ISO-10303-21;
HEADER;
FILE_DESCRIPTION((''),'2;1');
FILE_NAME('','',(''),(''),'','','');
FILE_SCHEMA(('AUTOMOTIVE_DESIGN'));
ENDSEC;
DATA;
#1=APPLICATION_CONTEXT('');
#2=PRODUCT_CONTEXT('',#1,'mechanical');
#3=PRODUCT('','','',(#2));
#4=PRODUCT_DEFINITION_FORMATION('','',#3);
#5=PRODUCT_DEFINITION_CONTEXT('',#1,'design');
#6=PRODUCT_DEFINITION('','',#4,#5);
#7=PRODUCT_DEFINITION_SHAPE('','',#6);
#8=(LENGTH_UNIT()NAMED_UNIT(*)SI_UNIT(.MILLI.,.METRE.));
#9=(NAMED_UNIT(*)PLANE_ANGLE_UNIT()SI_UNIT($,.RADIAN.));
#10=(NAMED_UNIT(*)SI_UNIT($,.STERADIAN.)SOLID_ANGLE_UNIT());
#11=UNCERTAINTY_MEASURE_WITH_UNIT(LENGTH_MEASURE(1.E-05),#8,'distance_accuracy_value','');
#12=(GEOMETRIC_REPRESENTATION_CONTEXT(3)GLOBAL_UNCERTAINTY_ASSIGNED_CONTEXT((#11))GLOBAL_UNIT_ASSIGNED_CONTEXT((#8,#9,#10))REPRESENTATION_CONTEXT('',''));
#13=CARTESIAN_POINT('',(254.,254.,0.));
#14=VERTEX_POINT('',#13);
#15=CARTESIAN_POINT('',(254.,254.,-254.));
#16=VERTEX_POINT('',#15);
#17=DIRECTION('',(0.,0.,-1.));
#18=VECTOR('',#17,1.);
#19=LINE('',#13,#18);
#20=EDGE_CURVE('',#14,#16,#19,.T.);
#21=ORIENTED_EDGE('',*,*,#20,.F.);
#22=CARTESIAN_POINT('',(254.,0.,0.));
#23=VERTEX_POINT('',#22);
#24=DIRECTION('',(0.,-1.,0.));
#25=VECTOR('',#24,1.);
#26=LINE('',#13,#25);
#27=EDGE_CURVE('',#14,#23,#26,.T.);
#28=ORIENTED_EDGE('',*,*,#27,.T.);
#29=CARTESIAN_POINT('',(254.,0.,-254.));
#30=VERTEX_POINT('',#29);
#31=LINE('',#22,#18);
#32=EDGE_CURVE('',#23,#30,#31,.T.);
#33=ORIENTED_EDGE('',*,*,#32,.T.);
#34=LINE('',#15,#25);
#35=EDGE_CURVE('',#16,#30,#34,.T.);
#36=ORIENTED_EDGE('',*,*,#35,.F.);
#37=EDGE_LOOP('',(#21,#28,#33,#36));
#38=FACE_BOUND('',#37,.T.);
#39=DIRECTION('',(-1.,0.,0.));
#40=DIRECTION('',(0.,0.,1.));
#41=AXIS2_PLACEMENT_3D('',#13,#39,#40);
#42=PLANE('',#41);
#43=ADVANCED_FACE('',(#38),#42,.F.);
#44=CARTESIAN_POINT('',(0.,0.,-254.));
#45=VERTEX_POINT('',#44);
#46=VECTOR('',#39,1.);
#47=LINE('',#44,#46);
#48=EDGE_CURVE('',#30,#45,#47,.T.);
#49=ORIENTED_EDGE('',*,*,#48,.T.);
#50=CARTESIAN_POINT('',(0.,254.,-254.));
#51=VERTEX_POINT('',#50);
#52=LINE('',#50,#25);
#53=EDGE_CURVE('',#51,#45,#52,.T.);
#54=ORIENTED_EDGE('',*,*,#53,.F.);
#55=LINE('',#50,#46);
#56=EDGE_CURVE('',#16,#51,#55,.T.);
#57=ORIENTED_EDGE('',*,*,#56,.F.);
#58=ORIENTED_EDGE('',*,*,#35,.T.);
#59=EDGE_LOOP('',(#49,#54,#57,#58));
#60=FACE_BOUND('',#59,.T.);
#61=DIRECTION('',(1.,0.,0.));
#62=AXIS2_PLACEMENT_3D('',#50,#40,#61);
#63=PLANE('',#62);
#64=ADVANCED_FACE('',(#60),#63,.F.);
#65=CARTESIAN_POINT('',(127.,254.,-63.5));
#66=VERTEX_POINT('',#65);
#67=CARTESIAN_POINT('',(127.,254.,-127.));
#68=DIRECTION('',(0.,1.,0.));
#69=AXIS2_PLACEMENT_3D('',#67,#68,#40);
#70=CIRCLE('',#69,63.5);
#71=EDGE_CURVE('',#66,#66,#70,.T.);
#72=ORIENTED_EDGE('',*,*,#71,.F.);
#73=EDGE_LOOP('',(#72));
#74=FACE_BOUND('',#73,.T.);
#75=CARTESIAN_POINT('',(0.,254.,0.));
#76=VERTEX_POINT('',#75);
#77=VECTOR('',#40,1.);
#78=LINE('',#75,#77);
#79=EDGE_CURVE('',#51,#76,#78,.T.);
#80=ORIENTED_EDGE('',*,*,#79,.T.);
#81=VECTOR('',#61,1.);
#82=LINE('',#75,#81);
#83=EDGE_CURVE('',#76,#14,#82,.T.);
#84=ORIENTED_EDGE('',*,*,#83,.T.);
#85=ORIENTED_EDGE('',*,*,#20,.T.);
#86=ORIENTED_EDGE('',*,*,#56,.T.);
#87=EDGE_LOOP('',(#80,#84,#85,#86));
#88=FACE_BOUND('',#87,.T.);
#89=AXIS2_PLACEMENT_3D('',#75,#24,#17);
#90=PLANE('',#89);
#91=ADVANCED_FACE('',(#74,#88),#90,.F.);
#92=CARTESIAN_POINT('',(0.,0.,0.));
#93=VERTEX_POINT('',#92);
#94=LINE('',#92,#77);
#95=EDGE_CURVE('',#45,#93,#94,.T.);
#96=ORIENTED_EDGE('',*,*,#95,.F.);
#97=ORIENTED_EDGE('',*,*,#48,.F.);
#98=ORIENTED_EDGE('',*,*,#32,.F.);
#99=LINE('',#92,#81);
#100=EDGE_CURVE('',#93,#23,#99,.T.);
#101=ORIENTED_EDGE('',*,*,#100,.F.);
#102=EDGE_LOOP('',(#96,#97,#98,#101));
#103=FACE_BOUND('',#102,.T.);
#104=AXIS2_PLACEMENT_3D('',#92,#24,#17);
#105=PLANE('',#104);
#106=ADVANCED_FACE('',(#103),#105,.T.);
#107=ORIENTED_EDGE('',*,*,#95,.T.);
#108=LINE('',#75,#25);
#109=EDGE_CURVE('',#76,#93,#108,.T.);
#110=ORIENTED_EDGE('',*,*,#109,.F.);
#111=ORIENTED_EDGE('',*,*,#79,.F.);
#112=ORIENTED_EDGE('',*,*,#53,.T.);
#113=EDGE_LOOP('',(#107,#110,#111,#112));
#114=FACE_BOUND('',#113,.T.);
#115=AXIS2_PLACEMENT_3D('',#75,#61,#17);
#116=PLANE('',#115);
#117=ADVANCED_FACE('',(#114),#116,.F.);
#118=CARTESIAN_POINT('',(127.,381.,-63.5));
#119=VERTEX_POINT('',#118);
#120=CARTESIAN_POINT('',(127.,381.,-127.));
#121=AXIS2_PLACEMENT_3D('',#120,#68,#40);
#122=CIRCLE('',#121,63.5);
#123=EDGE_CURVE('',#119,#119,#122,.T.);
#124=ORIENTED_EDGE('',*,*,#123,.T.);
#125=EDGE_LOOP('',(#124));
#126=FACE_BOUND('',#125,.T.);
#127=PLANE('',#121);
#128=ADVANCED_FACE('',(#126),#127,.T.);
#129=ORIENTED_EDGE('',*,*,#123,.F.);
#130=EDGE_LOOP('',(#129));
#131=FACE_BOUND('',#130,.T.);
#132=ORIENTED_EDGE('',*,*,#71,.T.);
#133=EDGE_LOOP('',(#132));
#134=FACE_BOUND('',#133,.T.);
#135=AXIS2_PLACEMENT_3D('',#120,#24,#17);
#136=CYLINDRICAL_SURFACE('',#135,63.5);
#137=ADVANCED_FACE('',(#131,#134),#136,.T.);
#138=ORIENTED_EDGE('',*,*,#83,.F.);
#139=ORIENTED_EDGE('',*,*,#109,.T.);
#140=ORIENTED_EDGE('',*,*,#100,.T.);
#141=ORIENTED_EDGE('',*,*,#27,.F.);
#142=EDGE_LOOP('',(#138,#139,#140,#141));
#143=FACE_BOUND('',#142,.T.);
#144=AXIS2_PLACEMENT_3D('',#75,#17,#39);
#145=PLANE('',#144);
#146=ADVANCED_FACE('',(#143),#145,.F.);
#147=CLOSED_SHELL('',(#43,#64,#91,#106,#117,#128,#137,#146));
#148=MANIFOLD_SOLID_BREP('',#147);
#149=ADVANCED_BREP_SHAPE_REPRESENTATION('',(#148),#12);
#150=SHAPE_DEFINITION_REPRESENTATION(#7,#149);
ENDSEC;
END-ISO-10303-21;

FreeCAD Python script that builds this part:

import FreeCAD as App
import Part
import Sketcher
from FreeCAD import Vector
Q = App.Units.Quantity

doc = App.newDocument("Part")
body = doc.addObject("PartDesign::Body", "Body")

sketch1 = body.newObject("Sketcher::SketchObject", "Sketch")
sketch1.AttachmentSupport = (doc.getObject("XZ_Plane"), [""])
sketch1.MapMode = "FlatFace"
sketch1.addGeometry(Part.LineSegment(Vector(0, -254, 0), Vector(0, 0, 0)), False)
sketch1.addGeometry(Part.LineSegment(Vector(0, 0, 0), Vector(254, 0, 0)), False)
sketch1.addGeometry(Part.LineSegment(Vector(254, 0, 0), Vector(254, -254, 0)), False)
sketch1.addGeometry(Part.LineSegment(Vector(254, -254, 0), Vector(0, -254, 0)), False)
sketch1.addConstraint(Sketcher.Constraint("Coincident", 0, 2, 1, 1))
sketch1.addConstraint(Sketcher.Constraint("Coincident", 1, 2, 2, 1))
sketch1.addConstraint(Sketcher.Constraint("Coincident", 2, 2, 3, 1))
sketch1.addConstraint(Sketcher.Constraint("Coincident", 3, 2, 0, 1))
sketch1.addConstraint(Sketcher.Constraint("Vertical", 0))
sketch1.addConstraint(Sketcher.Constraint("Horizontal", 1))
sketch1.addConstraint(Sketcher.Constraint("Vertical", 2))
sketch1.addConstraint(Sketcher.Constraint("Horizontal", 3))
sketch1.addConstraint(Sketcher.Constraint("Coincident", 0, 2, -1, 1))
sketch1.addConstraint(Sketcher.Constraint("Equal", 3, 0))
sketch1.addConstraint(Sketcher.Constraint("DistanceX", 1, 1, 1, 2, Q("10 in")))
pad1 = body.newObject("PartDesign::Pad", "Pad")
pad1.Profile = sketch1
pad1.Length = Q("10 in")
pad1.Reversed = True

sketch2 = body.newObject("Sketcher::SketchObject", "Sketch001")
sketch2.AttachmentSupport = (doc.getObject("XZ_Plane"), [""])
sketch2.MapMode = "FlatFace"
sketch2.AttachmentOffset = App.Placement(Vector(0, 0, -10 * 25.4), App.Rotation())
sketch2.addGeometry(Part.Circle(Vector(127, -127, 0), Vector(0, 0, 1), 64), False)
sketch2.addConstraint(Sketcher.Constraint("Diameter", 0, Q("5 in")))
sketch2.addConstraint(Sketcher.Constraint("DistanceX", -1, 1, 0, 3, Q("5 in")))
sketch2.addConstraint(Sketcher.Constraint("DistanceY", 0, 3, -1, 1, Q("5 in")))
pad2 = body.newObject("PartDesign::Pad", "Pad001")
pad2.Profile = sketch2
pad2.Length = Q("5 in")
pad2.Reversed = True

doc.recompute()
